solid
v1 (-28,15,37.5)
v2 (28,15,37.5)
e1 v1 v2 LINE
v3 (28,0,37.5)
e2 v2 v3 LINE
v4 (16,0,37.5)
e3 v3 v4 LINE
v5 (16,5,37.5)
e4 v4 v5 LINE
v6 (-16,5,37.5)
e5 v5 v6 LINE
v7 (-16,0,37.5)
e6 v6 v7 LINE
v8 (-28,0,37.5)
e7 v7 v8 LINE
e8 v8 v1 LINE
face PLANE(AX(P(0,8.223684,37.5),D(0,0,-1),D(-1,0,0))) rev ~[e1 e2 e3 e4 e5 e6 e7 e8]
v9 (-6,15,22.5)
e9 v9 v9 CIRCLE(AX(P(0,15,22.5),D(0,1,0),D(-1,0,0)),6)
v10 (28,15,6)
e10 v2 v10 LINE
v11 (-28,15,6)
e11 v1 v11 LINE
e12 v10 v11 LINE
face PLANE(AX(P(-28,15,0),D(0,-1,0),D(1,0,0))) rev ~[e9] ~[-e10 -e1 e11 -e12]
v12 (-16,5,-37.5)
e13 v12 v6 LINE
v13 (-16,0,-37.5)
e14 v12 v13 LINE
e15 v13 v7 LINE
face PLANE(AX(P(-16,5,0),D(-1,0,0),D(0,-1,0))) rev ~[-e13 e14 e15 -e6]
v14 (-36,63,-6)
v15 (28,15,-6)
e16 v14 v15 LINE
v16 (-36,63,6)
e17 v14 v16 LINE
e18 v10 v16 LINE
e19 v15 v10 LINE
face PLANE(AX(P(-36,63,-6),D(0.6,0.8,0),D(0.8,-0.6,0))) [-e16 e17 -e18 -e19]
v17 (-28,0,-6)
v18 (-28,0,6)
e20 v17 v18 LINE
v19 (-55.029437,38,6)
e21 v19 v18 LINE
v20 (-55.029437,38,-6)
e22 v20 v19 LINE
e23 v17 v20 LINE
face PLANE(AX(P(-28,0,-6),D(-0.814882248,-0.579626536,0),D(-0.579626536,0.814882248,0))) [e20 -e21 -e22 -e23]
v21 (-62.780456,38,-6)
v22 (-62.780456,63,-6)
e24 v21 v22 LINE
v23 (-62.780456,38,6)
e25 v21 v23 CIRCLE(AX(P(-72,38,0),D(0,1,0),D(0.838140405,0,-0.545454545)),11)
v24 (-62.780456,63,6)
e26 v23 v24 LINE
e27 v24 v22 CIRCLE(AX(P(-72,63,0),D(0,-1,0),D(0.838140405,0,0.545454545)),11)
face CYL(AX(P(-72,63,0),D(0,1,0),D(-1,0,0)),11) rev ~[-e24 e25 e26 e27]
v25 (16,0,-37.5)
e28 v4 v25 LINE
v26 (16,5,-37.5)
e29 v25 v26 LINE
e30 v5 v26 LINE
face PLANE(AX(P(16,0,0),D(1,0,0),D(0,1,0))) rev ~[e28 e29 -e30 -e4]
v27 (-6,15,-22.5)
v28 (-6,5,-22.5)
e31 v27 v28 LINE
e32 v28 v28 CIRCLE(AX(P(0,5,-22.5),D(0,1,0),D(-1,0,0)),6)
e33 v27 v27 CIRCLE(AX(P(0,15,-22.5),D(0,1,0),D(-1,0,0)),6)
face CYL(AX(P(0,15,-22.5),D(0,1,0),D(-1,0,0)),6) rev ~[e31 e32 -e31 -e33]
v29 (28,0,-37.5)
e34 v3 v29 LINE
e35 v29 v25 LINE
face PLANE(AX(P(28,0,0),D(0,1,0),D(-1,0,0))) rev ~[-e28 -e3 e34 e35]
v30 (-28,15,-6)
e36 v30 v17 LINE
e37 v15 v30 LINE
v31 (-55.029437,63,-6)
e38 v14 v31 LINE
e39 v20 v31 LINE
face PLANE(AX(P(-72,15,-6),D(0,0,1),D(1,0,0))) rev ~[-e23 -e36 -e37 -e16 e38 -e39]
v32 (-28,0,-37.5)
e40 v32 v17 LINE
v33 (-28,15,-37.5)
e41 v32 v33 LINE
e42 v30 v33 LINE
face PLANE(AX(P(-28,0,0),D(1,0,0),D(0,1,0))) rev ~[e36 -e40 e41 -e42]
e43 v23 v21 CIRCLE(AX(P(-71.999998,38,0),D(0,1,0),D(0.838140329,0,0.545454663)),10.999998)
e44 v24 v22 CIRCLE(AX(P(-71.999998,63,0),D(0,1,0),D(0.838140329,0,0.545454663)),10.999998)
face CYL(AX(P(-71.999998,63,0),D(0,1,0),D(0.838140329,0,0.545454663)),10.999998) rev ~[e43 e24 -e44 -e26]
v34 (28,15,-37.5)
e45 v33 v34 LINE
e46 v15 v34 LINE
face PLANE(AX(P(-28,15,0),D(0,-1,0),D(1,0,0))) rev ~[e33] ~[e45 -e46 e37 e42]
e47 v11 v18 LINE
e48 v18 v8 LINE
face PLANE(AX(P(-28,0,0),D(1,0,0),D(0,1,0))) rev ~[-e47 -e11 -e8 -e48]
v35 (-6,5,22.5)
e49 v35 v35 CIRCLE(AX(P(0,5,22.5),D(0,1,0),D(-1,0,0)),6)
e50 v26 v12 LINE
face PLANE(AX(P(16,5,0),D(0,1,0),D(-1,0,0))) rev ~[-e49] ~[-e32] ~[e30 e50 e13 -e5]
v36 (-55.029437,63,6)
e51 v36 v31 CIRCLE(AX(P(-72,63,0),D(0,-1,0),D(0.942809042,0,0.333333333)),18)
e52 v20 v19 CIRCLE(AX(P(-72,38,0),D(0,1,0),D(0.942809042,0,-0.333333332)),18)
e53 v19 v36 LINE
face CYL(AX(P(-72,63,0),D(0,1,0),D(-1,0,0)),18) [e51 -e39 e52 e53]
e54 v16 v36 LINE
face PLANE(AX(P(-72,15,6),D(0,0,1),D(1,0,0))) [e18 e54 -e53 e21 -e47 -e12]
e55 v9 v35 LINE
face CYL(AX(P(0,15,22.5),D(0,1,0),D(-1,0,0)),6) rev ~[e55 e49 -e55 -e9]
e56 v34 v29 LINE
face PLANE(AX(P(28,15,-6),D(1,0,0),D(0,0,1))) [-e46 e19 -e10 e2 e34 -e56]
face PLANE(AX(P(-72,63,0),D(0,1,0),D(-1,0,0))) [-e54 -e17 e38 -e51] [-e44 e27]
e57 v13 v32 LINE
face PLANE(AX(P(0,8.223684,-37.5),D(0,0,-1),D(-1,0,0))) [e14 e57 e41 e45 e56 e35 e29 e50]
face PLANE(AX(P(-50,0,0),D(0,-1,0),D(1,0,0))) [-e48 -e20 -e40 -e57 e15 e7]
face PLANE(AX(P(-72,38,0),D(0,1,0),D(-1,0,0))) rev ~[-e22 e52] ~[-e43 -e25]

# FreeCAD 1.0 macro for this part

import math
import FreeCAD as App
import Part
import Sketcher
from FreeCAD import Vector


def add_polygon(sketch, points):
    """Adds a closed chain of lines whose ends are joined by coincident constraints."""
    first, n = sketch.GeometryCount, len(points)
    for a, b in zip(points, points[1:] + points[:1]):
        sketch.addGeometry(Part.LineSegment(App.Vector(*a, 0), App.Vector(*b, 0)), False)
    for i in range(n):
        sketch.addConstraint(Sketcher.Constraint("Coincident", first + i, 2, first + (i + 1) % n, 1))

doc = App.newDocument("Part")
body = doc.addObject("PartDesign::Body", "Body")

sketch1 = body.newObject("Sketcher::SketchObject", "Sketch")
sketch1.AttachmentSupport = (doc.getObject("XY_Plane"), [""])
sketch1.MapMode = "FlatFace"
add_polygon(sketch1, [(-28, 15), (-28, 0), (-16, 0), (-16, 5), (16, 5), (16, 0), (28, 0), (28, 15)])
sketch1.addConstraint([
    Sketcher.Constraint("Vertical", 0),
    Sketcher.Constraint("Horizontal", 1),
    Sketcher.Constraint("Vertical", 2),
    Sketcher.Constraint("Horizontal", 3),
    Sketcher.Constraint("Vertical", 4),
    Sketcher.Constraint("Horizontal", 5),
    Sketcher.Constraint("Vertical", 6),
    Sketcher.Constraint("Horizontal", 7),
    Sketcher.Constraint("Symmetric", 1, 2, 4, 2, -1, 1),
    Sketcher.Constraint("Symmetric", 0, 2, 5, 2, -2),
    Sketcher.Constraint("DistanceX", 1, 1, 1, 2, 12.0),
    Sketcher.Constraint("DistanceX", 3, 1, 3, 2, 32.0),
    Sketcher.Constraint("DistanceY", 0, 2, 0, 1, 15.0),
    Sketcher.Constraint("DistanceY", 2, 1, 2, 2, 5.0),
])
pad1 = body.newObject("PartDesign::Pad", "Pad")
pad1.Profile = sketch1
pad1.Length = 75
pad1.Midplane = True

sketch2 = body.newObject("Sketcher::SketchObject", "Sketch001")
sketch2.AttachmentSupport = (doc.getObject("XZ_Plane"), [""])
sketch2.MapMode = "FlatFace"
sketch2.AttachmentOffset = App.Placement(Vector(0, 0, -15), App.Rotation())
add_polygon(sketch2, [(28, 6), (28, -6), (-72, -6), (-72, 6)])
sketch2.addConstraint([
    Sketcher.Constraint("Vertical", 0),
    Sketcher.Constraint("Horizontal", 1),
    Sketcher.Constraint("Vertical", 2),
    Sketcher.Constraint("Horizontal", 3),
    Sketcher.Constraint("DistanceX", 1, 2, 1, 1, 100.0),
    Sketcher.Constraint("DistanceY", 0, 2, 0, 1, 12.0),
    Sketcher.Constraint("DistanceX", -1, 1, 0, 2, 28.0),
    Sketcher.Constraint("DistanceY", 0, 2, -1, 1, 6.0),
])
pad2 = body.newObject("PartDesign::Pad", "Pad001")
pad2.Profile = sketch2
pad2.Length = 48
pad2.Reversed = True

sketch3 = body.newObject("Sketcher::SketchObject", "Sketch002")
sketch3.AttachmentSupport = (doc.getObject("XZ_Plane"), [""])
sketch3.MapMode = "FlatFace"
sketch3.AttachmentOffset = App.Placement(Vector(0, 0, -15), App.Rotation())
add_polygon(sketch3, [(-72, 6), (-72, -6), (-28, -6), (-28, 6)])
sketch3.addConstraint([
    Sketcher.Constraint("Vertical", 0),
    Sketcher.Constraint("Horizontal", 1),
    Sketcher.Constraint("Vertical", 2),
    Sketcher.Constraint("Horizontal", 3),
    Sketcher.Constraint("DistanceX", 1, 1, 1, 2, 44.0),
    Sketcher.Constraint("DistanceY", 0, 2, 0, 1, 12.0),
    Sketcher.Constraint("DistanceX", 0, 2, -1, 1, 72.0),
    Sketcher.Constraint("DistanceY", 0, 2, -1, 1, 6.0),
])
pad3 = body.newObject("PartDesign::Pad", "Pad002")
pad3.Profile = sketch3
pad3.Length = 15

sketch4 = body.newObject("Sketcher::SketchObject", "Sketch003")
sketch4.AttachmentSupport = (doc.getObject("XY_Plane"), [""])
sketch4.MapMode = "FlatFace"
sketch4.AttachmentOffset = App.Placement(Vector(0, 0, -6), App.Rotation())
add_polygon(sketch4, [(28, 15), (-36, 63), (28, 63)])
add_polygon(sketch4, [(-72, 38), (-28, 0), (-72, 0)])
sketch4.addConstraint([
    Sketcher.Constraint("Horizontal", 1),
    Sketcher.Constraint("Vertical", 2),
    Sketcher.Constraint("Horizontal", 4),
    Sketcher.Constraint("Vertical", 5),
    Sketcher.Constraint("PointOnObject", 3, 2, -1),
    Sketcher.Constraint("DistanceX", 1, 1, 1, 2, 64.0),
    Sketcher.Constraint("DistanceX", 4, 2, 4, 1, 44.0),
    Sketcher.Constraint("DistanceY", 2, 2, 2, 1, 48.0),
    Sketcher.Constraint("DistanceY", 5, 1, 5, 2, 38.0),
    Sketcher.Constraint("DistanceX", 0, 2, -1, 1, 36.0),
    Sketcher.Constraint("DistanceY", -1, 1, 0, 2, 63.0),
    Sketcher.Constraint("DistanceX", 3, 2, -1, 1, 28.0),
])
pocket1 = body.newObject("PartDesign::Pocket", "Pocket")
pocket1.Profile = sketch4
pocket1.Type = "ThroughAll"
pocket1.Reversed = True

sketch5 = body.newObject("Sketcher::SketchObject", "Sketch004")
sketch5.AttachmentSupport = (doc.getObject("XZ_Plane"), [""])
sketch5.MapMode = "FlatFace"
sketch5.AttachmentOffset = App.Placement(Vector(0, 0, -15), App.Rotation())
sketch5.addGeometry([
    Part.Circle(Vector(0, 22.5, 0), Vector(0, 0, 1), 6),
    Part.Circle(Vector(0, -22.5, 0), Vector(0, 0, 1), 6),
], False)
sketch5.addConstraint([
    Sketcher.Constraint("Equal", 0, 1),
    Sketcher.Constraint("Symmetric", 0, 3, 1, 3, -1, 1),
    Sketcher.Constraint("PointOnObject", 0, 3, -2),
    Sketcher.Constraint("Diameter", 0, 12.0),
    Sketcher.Constraint("DistanceY", 1, 3, 0, 3, 45.0),
])
pocket2 = body.newObject("PartDesign::Pocket", "Pocket001")
pocket2.Profile = sketch5
pocket2.Type = "ThroughAll"
pocket2.Reversed = True

sketch6 = body.newObject("Sketcher::SketchObject", "Sketch005")
sketch6.AttachmentSupport = (doc.getObject("XZ_Plane"), [""])
sketch6.MapMode = "FlatFace"
sketch6.AttachmentOffset = App.Placement(Vector(0, 0, -63), App.Rotation())
sketch6.addGeometry([
    Part.Circle(Vector(-72, 0, 0), Vector(0, 0, 1), 18),
    Part.Circle(Vector(-72, 0, 0), Vector(0, 0, 1), 11),
], False)
sketch6.addConstraint([
    Sketcher.Constraint("Coincident", 1, 3, 0, 3),
    Sketcher.Constraint("PointOnObject", 0, 3, -1),
    Sketcher.Constraint("Diameter", 0, 36.0),
    Sketcher.Constraint("Diameter", 1, 22.0),
    Sketcher.Constraint("DistanceX", 0, 3, -1, 1, 72.0),
])
pad4 = body.newObject("PartDesign::Pad", "Pad003")
pad4.Profile = sketch6
pad4.Length = 25

sketch7 = body.newObject("Sketcher::SketchObject", "Sketch006")
sketch7.AttachmentSupport = (doc.getObject("XY_Plane"), [""])
sketch7.MapMode = "FlatFace"
sketch7.AttachmentOffset = App.Placement(Vector(0, 0, -6), App.Rotation())
add_polygon(sketch7, [(-55.029437, 38), (-28, 0), (-72, 38)])
sketch7.addConstraint([
    Sketcher.Constraint("Horizontal", 2),
    Sketcher.Constraint("PointOnObject", 0, 2, -1),
    Sketcher.Constraint("DistanceX", 0, 2, -1, 1, 28.0),
    Sketcher.Constraint("DistanceX", 1, 2, -1, 1, 72.0),
    Sketcher.Constraint("DistanceY", -1, 1, 1, 2, 38.0),
    Sketcher.Constraint("DistanceX", 2, 1, 2, 2, 16.970563),
])
pocket3 = body.newObject("PartDesign::Pocket", "Pocket002")
pocket3.Profile = sketch7
pocket3.Type = "ThroughAll"
pocket3.Reversed = True

sketch8 = body.newObject("Sketcher::SketchObject", "Sketch007")
sketch8.AttachmentSupport = (doc.getObject("XZ_Plane"), [""])
sketch8.MapMode = "FlatFace"
sketch8.AttachmentOffset = App.Placement(Vector(0, 0, -63), App.Rotation())
sketch8.addGeometry([
    Part.ArcOfCircle(Part.Circle(Vector(-71.999998, 0, 0), Vector(0, 0, 1), 10.999998), math.radians(-33.055739), math.radians(33.055739)),
    Part.LineSegment(Vector(-62.780456, -6, 0), Vector(-72, -6, 0)),
    Part.LineSegment(Vector(-72, -6, 0), Vector(-72, 6, 0)),
    Part.LineSegment(Vector(-72, 6, 0), Vector(-62.780456, 6, 0)),
], False)
sketch8.addConstraint([
    Sketcher.Constraint("Coincident", 0, 1, 1, 1),
    Sketcher.Constraint("Coincident", 1, 2, 2, 1),
    Sketcher.Constraint("Coincident", 2, 2, 3, 1),
    Sketcher.Constraint("Coincident", 3, 2, 0, 2),
    Sketcher.Constraint("Horizontal", 1),
    Sketcher.Constraint("Vertical", 2),
    Sketcher.Constraint("Horizontal", 3),
    Sketcher.Constraint("Symmetric", 0, 1, 3, 2, -1),
    Sketcher.Constraint("DistanceY", 2, 1, 2, 2, 12.0),
    Sketcher.Constraint("DistanceX", 1, 2, -1, 1, 72.0),
    Sketcher.Constraint("Radius", 0, 10.999998),
    Sketcher.Constraint("DistanceX", 1, 2, 1, 1, 9.219544),
])
pocket4 = body.newObject("PartDesign::Pocket", "Pocket003")
pocket4.Profile = sketch8
pocket4.Type = "ThroughAll"
pocket4.Reversed = True

doc.recompute()
